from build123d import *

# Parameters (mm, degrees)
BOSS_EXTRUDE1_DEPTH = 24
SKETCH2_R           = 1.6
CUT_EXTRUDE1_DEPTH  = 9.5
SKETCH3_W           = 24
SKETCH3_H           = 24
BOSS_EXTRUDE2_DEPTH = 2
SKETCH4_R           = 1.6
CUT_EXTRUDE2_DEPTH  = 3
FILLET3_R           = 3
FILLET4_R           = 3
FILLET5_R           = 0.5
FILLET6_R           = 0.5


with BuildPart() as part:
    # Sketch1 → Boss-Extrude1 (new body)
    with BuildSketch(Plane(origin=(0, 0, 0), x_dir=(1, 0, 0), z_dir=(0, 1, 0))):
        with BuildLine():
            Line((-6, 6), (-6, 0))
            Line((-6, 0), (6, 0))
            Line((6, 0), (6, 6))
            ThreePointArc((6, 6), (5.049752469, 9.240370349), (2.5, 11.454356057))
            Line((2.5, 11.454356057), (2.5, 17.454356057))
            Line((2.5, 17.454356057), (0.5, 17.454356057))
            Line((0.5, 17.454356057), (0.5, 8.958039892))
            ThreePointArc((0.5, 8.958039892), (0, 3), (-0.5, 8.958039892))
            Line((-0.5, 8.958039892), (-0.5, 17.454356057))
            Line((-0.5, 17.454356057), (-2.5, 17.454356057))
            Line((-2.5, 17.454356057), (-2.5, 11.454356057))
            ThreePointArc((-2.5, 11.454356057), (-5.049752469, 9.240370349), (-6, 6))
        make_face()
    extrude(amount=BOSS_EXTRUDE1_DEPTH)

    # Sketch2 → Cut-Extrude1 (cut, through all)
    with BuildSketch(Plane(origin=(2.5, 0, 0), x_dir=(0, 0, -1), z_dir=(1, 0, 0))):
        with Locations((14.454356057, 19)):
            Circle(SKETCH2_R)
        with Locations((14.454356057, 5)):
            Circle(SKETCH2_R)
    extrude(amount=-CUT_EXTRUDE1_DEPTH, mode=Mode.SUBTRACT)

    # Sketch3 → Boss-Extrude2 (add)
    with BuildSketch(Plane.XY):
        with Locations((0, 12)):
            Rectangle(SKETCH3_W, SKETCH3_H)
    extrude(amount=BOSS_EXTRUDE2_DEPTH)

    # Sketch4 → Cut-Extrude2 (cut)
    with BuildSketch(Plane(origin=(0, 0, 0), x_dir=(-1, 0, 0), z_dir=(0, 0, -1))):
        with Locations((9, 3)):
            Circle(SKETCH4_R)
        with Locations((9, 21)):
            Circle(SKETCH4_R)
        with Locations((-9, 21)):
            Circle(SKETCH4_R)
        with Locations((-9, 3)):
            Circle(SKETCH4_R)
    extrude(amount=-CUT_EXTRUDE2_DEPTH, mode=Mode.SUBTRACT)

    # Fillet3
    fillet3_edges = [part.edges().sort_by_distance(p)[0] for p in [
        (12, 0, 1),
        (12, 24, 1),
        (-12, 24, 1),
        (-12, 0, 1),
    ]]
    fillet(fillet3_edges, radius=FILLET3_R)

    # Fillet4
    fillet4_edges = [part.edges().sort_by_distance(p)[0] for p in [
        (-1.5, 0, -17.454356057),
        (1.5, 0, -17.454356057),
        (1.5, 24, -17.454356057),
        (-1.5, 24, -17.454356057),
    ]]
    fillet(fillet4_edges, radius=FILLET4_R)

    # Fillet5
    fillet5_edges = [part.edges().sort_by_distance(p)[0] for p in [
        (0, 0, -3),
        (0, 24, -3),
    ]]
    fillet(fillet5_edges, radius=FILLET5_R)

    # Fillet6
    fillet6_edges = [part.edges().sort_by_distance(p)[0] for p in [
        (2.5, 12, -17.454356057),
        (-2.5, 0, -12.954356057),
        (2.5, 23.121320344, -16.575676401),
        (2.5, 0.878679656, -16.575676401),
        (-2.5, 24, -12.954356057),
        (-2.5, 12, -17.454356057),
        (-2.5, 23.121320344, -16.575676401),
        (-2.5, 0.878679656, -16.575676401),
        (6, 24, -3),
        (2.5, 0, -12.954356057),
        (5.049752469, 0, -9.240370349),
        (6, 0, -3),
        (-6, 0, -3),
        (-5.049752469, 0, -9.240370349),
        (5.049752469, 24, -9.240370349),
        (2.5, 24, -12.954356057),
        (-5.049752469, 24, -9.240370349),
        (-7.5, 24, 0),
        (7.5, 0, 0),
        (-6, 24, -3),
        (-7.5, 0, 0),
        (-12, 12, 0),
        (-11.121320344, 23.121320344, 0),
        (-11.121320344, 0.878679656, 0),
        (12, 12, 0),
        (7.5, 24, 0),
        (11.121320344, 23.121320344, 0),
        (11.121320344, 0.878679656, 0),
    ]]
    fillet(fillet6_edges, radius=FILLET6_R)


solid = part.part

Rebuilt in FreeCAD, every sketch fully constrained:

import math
import FreeCAD as App
import Part
import Sketcher
Q = App.Units.Quantity


def edges_at(feature, points):
    """Names of the edges that pass closest to the given points."""
    edges = feature.Shape.Edges
    near = lambda p: min(range(len(edges)), key=lambda i: edges[i].distToShape(Part.Vertex(*p))[0])
    return sorted({f"Edge{near(p) + 1}" for p in points})

doc = App.newDocument("Part")
body = doc.addObject("PartDesign::Body", "Body")

# Sketch on XZ plane
sketch1 = body.newObject("Sketcher::SketchObject", "Sketch")
sketch1.AttachmentSupport = (doc.getObject("XZ_Plane"), [""])
sketch1.MapMode = "FlatFace"
sketch1.addGeometry([
    Part.LineSegment(App.Vector(-6, -6, 0), App.Vector(-6, 0, 0)),  # 0
    Part.LineSegment(App.Vector(-6, 0, 0), App.Vector(6, 0, 0)),  # 1
    Part.LineSegment(App.Vector(6, 0, 0), App.Vector(6, -6, 0)),  # 2
    Part.ArcOfCircle(Part.Circle(App.Vector(0, -6, 0), App.Vector(0, 0, 1), 6), math.radians(-65), math.radians(0)),  # 3
    Part.LineSegment(App.Vector(2.5, -11.5, 0), App.Vector(2.5, -17.5, 0)),  # 4
    Part.LineSegment(App.Vector(2.5, -17.5, 0), App.Vector(0.5, -17.5, 0)),  # 5
    Part.LineSegment(App.Vector(0.5, -17.5, 0), App.Vector(0.5, -9, 0)),  # 6
    Part.ArcOfCircle(Part.Circle(App.Vector(0, -6, 0), App.Vector(0, 0, 1), 3), math.radians(-80), math.radians(260)),  # 7
    Part.LineSegment(App.Vector(-0.5, -9, 0), App.Vector(-0.5, -17.5, 0)),  # 8
    Part.LineSegment(App.Vector(-0.5, -17.5, 0), App.Vector(-2.5, -17.5, 0)),  # 9
    Part.LineSegment(App.Vector(-2.5, -17.5, 0), App.Vector(-2.5, -11.5, 0)),  # 10
    Part.ArcOfCircle(Part.Circle(App.Vector(0, -6, 0), App.Vector(0, 0, 1), 6), math.radians(-180), math.radians(-115)),  # 11
], False)
sketch1.addConstraint([
    Sketcher.Constraint("Coincident", 0, 2, 1, 1),
    Sketcher.Constraint("Coincident", 1, 2, 2, 1),
    Sketcher.Constraint("Tangent", 2, 2, 3, 2),
    Sketcher.Constraint("Coincident", 3, 1, 4, 1),
    Sketcher.Constraint("Coincident", 4, 2, 5, 1),
    Sketcher.Constraint("Coincident", 5, 2, 6, 1),
    Sketcher.Constraint("Coincident", 6, 2, 7, 1),
    Sketcher.Constraint("Coincident", 7, 2, 8, 1),
    Sketcher.Constraint("Coincident", 8, 2, 9, 1),
    Sketcher.Constraint("Coincident", 9, 2, 10, 1),
    Sketcher.Constraint("Coincident", 10, 2, 11, 2),
    Sketcher.Constraint("Tangent", 11, 1, 0, 1),
    Sketcher.Constraint("Vertical", 0),
    Sketcher.Constraint("Horizontal", 1),
    Sketcher.Constraint("Vertical", 2),
    Sketcher.Constraint("Vertical", 4),
    Sketcher.Constraint("Horizontal", 5),
    Sketcher.Constraint("Vertical", 6),
    Sketcher.Constraint("Vertical", 8),
    Sketcher.Constraint("Horizontal", 9),
    Sketcher.Constraint("Vertical", 10),
    Sketcher.Constraint("Coincident", 7, 3, 3, 3),
    Sketcher.Constraint("Coincident", 11, 3, 3, 3),
    Sketcher.Constraint("Equal", 3, 11),
    Sketcher.Constraint("Symmetric", 0, 2, 1, 2, -1, 1),
    Sketcher.Constraint("Symmetric", 5, 2, 8, 2, -2),
    Sketcher.Constraint("Horizontal", 3, 1, 10, 2),
    Sketcher.Constraint("Equal", 2, 4),
    Sketcher.Constraint("Radius", 3, Q("6 mm")),
    Sketcher.Constraint("Radius", 7, Q("3 mm")),
    Sketcher.Constraint("DistanceX", 5, 2, 5, 1, Q("2 mm")),
    Sketcher.Constraint("DistanceY", 0, 1, 0, 2, Q("6 mm")),
    Sketcher.Constraint("DistanceX", 7, 2, 6, 2, Q("1 mm")),
])
pad1 = body.newObject("PartDesign::Pad", "Pad")
pad1.Profile = sketch1
pad1.Length = 24
pad1.Reversed = True

# Sketch on YZ plane
sketch2 = body.newObject("Sketcher::SketchObject", "Sketch001")
sketch2.AttachmentSupport = (doc.getObject("YZ_Plane"), [""])
sketch2.MapMode = "FlatFace"
sketch2.AttachmentOffset = App.Placement(App.Vector(0, 0, 2.5), App.Rotation())
sketch2.addGeometry([
    Part.Circle(App.Vector(19, -14.5, 0), App.Vector(0, 0, 1), 1.6),
    Part.Circle(App.Vector(5, -14.5, 0), App.Vector(0, 0, 1), 1.6),
], False)
sketch2.addConstraint([
    Sketcher.Constraint("Equal", 0, 1),
    Sketcher.Constraint("Horizontal", 0, 3, 1, 3),
    Sketcher.Constraint("Diameter", 0, Q("3.2 mm")),
    Sketcher.Constraint("DistanceX", -1, 1, 0, 3, Q("19 mm")),
    Sketcher.Constraint("DistanceX", -1, 1, 1, 3, Q("5 mm")),
    Sketcher.Constraint("DistanceY", 0, 3, -1, 1, Q("14.454356 mm")),
])
pocket1 = body.newObject("PartDesign::Pocket", "Pocket")
pocket1.Profile = sketch2
pocket1.Type = "ThroughAll"

# Sketch on XY plane
sketch3 = body.newObject("Sketcher::SketchObject", "Sketch002")
sketch3.AttachmentSupport = (doc.getObject("XY_Plane"), [""])
sketch3.MapMode = "FlatFace"
sketch3.addGeometry([
    Part.LineSegment(App.Vector(-12, 24, 0), App.Vector(-12, 0, 0)),
    Part.LineSegment(App.Vector(-12, 0, 0), App.Vector(12, 0, 0)),
    Part.LineSegment(App.Vector(12, 0, 0), App.Vector(12, 24, 0)),
    Part.LineSegment(App.Vector(12, 24, 0), App.Vector(-12, 24, 0)),
], False)
sketch3.addConstraint([
    Sketcher.Constraint("Coincident", 0, 2, 1, 1),
    Sketcher.Constraint("Coincident", 1, 2, 2, 1),
    Sketcher.Constraint("Coincident", 2, 2, 3, 1),
    Sketcher.Constraint("Coincident", 3, 2, 0, 1),
    Sketcher.Constraint("Vertical", 0),
    Sketcher.Constraint("Horizontal", 1),
    Sketcher.Constraint("Vertical", 2),
    Sketcher.Constraint("Horizontal", 3),
    Sketcher.Constraint("Symmetric", 0, 2, 1, 2, -1, 1),
    Sketcher.Constraint("Equal", 3, 0),
    Sketcher.Constraint("DistanceX", 1, 1, 1, 2, Q("24 mm")),
])
pad2 = body.newObject("PartDesign::Pad", "Pad001")
pad2.Profile = sketch3
pad2.Length = 2

# Sketch on XY plane
sketch4 = body.newObject("Sketcher::SketchObject", "Sketch003")
sketch4.AttachmentSupport = (doc.getObject("XY_Plane"), [""])
sketch4.MapMode = "FlatFace"
sketch4.addGeometry([
    Part.Circle(App.Vector(-9, 3, 0), App.Vector(0, 0, 1), 1.6),
    Part.Circle(App.Vector(-9, 21, 0), App.Vector(0, 0, 1), 1.6),
    Part.Circle(App.Vector(9, 21, 0), App.Vector(0, 0, 1), 1.6),
    Part.Circle(App.Vector(9, 3, 0), App.Vector(0, 0, 1), 1.6),
], False)
sketch4.addConstraint([
    Sketcher.Constraint("Equal", 0, 1),
    Sketcher.Constraint("Equal", 1, 2),
    Sketcher.Constraint("Equal", 2, 3),
    Sketcher.Constraint("Symmetric", 1, 3, 2, 3, -2),
    Sketcher.Constraint("Symmetric", 0, 3, 3, 3, -2),
    Sketcher.Constraint("Vertical", 0, 3, 1, 3),
    Sketcher.Constraint("Diameter", 0, Q("3.2 mm")),
    Sketcher.Constraint("DistanceX", 0, 3, -1, 1, Q("9 mm")),
    Sketcher.Constraint("DistanceY", -1, 1, 0, 3, Q("3 mm")),
    Sketcher.Constraint("DistanceY", -1, 1, 1, 3, Q("21 mm")),
])
pocket2 = body.newObject("PartDesign::Pocket", "Pocket001")
pocket2.Profile = sketch4
pocket2.Length = 3
pocket2.Reversed = True
doc.recompute()

fillet = body.newObject("PartDesign::Fillet", "Fillet")
fillet.Base = (pocket2, edges_at(pocket2, [
    (12, 0, 1),
    (12, 24, 1),
    (-12, 24, 1),
    (-12, 0, 1),
]))
fillet.Radius = 3
doc.recompute()

fillet2 = body.newObject("PartDesign::Fillet", "Fillet001")
fillet2.Base = (fillet, edges_at(fillet, [
    (-1.5, 0, -17.454),
    (1.5, 0, -17.454),
    (1.5, 24, -17.454),
    (-1.5, 24, -17.454),
]))
fillet2.Radius = 3
doc.recompute()

fillet3 = body.newObject("PartDesign::Fillet", "Fillet002")
fillet3.Base = (fillet2, edges_at(fillet2, [(0, 0, -3), (0, 24, -3)]))
fillet3.Radius = 0.5
doc.recompute()

fillet4 = body.newObject("PartDesign::Fillet", "Fillet003")
fillet4.Base = (fillet3, edges_at(fillet3, [
    (2.5, 12, -17.454),
    (-2.5, 0, -12.954),
    (2.5, 23.121, -16.576),
    (2.5, 0.879, -16.576),
    (-2.5, 24, -12.954),
    (-2.5, 12, -17.454),
    (-2.5, 23.121, -16.576),
    (-2.5, 0.879, -16.576),
    (6, 24, -3),
    (2.5, 0, -12.954),
    (5.05, 0, -9.24),
    (6, 0, -3),
    (-6, 0, -3),
    (-5.05, 0, -9.24),
    (5.05, 24, -9.24),
    (2.5, 24, -12.954),
    (-5.05, 24, -9.24),
    (-7.5, 24, 0),
    (7.5, 0, 0),
    (-6, 24, -3),
    (-7.5, 0, 0),
    (-12, 12, 0),
    (-11.121, 23.121, 0),
    (-11.121, 0.879, 0),
    (12, 12, 0),
    (7.5, 24, 0),
    (11.121, 23.121, 0),
    (11.121, 0.879, 0),
]))
fillet4.Radius = 0.5

doc.recompute()
